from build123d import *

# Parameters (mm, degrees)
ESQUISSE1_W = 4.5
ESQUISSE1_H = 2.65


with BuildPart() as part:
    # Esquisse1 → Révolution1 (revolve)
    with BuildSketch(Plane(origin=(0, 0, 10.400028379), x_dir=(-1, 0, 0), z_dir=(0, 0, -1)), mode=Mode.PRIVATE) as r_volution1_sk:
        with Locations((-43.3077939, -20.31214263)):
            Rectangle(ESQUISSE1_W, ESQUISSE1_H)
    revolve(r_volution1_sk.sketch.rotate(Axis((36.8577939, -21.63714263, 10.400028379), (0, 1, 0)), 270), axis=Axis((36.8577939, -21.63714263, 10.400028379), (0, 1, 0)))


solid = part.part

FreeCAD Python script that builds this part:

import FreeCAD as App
import Part
import Sketcher
from FreeCAD import Vector


def add_polygon(sketch, points):
    """Adds a closed chain of lines whose ends are joined by coincident constraints."""
    first, n = sketch.GeometryCount, len(points)
    for a, b in zip(points, points[1:] + points[:1]):
        sketch.addGeometry(Part.LineSegment(App.Vector(*a, 0), App.Vector(*b, 0)), False)
    for i in range(n):
        sketch.addConstraint(Sketcher.Constraint("Coincident", first + i, 2, first + (i + 1) % n, 1))

doc = App.newDocument("Part")
body = doc.addObject("PartDesign::Body", "Body")

# Sketch on XY plane
sketch1 = body.newObject("Sketcher::SketchObject", "Sketch")
sketch1.AttachmentSupport = (doc.getObject("XY_Plane"), [""])
sketch1.MapMode = "FlatFace"
sketch1.AttachmentOffset = App.Placement(Vector(0, 0, 10.400028), App.Rotation())
add_polygon(sketch1, [(45.557794, -18.987143), (45.557794, -21.637143), (41.057794, -21.637143), (41.057794, -18.987143)])  # lines 0-3
sketch1.addGeometry(Part.LineSegment(Vector(36.857794, -21.637143, 0), Vector(36.857794, -18.987143, 0)), True)  # axis
sketch1.addConstraint([
    Sketcher.Constraint("Vertical", 0),
    Sketcher.Constraint("Horizontal", 1),
    Sketcher.Constraint("Vertical", 2),
    Sketcher.Constraint("Horizontal", 3),
    Sketcher.Constraint("Vertical", 4),
    Sketcher.Constraint("Horizontal", 1, 2, 4, 1),
    Sketcher.Constraint("Horizontal", 3, 2, 4, 2),
    Sketcher.Constraint("DistanceX", 1, 2, 1, 1, 4.5),
    Sketcher.Constraint("DistanceY", 0, 2, 0, 1, 2.65),
    Sketcher.Constraint("DistanceX", 4, 1, 1, 2, 4.2),
    Sketcher.Constraint("DistanceX", -1, 1, 0, 2, 45.557794),
    Sketcher.Constraint("DistanceY", 0, 2, -1, 1, 21.637143),
])
revolution = body.newObject("PartDesign::Revolution", "Revolution")
revolution.Profile = sketch1
revolution.ReferenceAxis = (sketch1, ["Axis0"])
revolution.Angle = 360

doc.recompute()
